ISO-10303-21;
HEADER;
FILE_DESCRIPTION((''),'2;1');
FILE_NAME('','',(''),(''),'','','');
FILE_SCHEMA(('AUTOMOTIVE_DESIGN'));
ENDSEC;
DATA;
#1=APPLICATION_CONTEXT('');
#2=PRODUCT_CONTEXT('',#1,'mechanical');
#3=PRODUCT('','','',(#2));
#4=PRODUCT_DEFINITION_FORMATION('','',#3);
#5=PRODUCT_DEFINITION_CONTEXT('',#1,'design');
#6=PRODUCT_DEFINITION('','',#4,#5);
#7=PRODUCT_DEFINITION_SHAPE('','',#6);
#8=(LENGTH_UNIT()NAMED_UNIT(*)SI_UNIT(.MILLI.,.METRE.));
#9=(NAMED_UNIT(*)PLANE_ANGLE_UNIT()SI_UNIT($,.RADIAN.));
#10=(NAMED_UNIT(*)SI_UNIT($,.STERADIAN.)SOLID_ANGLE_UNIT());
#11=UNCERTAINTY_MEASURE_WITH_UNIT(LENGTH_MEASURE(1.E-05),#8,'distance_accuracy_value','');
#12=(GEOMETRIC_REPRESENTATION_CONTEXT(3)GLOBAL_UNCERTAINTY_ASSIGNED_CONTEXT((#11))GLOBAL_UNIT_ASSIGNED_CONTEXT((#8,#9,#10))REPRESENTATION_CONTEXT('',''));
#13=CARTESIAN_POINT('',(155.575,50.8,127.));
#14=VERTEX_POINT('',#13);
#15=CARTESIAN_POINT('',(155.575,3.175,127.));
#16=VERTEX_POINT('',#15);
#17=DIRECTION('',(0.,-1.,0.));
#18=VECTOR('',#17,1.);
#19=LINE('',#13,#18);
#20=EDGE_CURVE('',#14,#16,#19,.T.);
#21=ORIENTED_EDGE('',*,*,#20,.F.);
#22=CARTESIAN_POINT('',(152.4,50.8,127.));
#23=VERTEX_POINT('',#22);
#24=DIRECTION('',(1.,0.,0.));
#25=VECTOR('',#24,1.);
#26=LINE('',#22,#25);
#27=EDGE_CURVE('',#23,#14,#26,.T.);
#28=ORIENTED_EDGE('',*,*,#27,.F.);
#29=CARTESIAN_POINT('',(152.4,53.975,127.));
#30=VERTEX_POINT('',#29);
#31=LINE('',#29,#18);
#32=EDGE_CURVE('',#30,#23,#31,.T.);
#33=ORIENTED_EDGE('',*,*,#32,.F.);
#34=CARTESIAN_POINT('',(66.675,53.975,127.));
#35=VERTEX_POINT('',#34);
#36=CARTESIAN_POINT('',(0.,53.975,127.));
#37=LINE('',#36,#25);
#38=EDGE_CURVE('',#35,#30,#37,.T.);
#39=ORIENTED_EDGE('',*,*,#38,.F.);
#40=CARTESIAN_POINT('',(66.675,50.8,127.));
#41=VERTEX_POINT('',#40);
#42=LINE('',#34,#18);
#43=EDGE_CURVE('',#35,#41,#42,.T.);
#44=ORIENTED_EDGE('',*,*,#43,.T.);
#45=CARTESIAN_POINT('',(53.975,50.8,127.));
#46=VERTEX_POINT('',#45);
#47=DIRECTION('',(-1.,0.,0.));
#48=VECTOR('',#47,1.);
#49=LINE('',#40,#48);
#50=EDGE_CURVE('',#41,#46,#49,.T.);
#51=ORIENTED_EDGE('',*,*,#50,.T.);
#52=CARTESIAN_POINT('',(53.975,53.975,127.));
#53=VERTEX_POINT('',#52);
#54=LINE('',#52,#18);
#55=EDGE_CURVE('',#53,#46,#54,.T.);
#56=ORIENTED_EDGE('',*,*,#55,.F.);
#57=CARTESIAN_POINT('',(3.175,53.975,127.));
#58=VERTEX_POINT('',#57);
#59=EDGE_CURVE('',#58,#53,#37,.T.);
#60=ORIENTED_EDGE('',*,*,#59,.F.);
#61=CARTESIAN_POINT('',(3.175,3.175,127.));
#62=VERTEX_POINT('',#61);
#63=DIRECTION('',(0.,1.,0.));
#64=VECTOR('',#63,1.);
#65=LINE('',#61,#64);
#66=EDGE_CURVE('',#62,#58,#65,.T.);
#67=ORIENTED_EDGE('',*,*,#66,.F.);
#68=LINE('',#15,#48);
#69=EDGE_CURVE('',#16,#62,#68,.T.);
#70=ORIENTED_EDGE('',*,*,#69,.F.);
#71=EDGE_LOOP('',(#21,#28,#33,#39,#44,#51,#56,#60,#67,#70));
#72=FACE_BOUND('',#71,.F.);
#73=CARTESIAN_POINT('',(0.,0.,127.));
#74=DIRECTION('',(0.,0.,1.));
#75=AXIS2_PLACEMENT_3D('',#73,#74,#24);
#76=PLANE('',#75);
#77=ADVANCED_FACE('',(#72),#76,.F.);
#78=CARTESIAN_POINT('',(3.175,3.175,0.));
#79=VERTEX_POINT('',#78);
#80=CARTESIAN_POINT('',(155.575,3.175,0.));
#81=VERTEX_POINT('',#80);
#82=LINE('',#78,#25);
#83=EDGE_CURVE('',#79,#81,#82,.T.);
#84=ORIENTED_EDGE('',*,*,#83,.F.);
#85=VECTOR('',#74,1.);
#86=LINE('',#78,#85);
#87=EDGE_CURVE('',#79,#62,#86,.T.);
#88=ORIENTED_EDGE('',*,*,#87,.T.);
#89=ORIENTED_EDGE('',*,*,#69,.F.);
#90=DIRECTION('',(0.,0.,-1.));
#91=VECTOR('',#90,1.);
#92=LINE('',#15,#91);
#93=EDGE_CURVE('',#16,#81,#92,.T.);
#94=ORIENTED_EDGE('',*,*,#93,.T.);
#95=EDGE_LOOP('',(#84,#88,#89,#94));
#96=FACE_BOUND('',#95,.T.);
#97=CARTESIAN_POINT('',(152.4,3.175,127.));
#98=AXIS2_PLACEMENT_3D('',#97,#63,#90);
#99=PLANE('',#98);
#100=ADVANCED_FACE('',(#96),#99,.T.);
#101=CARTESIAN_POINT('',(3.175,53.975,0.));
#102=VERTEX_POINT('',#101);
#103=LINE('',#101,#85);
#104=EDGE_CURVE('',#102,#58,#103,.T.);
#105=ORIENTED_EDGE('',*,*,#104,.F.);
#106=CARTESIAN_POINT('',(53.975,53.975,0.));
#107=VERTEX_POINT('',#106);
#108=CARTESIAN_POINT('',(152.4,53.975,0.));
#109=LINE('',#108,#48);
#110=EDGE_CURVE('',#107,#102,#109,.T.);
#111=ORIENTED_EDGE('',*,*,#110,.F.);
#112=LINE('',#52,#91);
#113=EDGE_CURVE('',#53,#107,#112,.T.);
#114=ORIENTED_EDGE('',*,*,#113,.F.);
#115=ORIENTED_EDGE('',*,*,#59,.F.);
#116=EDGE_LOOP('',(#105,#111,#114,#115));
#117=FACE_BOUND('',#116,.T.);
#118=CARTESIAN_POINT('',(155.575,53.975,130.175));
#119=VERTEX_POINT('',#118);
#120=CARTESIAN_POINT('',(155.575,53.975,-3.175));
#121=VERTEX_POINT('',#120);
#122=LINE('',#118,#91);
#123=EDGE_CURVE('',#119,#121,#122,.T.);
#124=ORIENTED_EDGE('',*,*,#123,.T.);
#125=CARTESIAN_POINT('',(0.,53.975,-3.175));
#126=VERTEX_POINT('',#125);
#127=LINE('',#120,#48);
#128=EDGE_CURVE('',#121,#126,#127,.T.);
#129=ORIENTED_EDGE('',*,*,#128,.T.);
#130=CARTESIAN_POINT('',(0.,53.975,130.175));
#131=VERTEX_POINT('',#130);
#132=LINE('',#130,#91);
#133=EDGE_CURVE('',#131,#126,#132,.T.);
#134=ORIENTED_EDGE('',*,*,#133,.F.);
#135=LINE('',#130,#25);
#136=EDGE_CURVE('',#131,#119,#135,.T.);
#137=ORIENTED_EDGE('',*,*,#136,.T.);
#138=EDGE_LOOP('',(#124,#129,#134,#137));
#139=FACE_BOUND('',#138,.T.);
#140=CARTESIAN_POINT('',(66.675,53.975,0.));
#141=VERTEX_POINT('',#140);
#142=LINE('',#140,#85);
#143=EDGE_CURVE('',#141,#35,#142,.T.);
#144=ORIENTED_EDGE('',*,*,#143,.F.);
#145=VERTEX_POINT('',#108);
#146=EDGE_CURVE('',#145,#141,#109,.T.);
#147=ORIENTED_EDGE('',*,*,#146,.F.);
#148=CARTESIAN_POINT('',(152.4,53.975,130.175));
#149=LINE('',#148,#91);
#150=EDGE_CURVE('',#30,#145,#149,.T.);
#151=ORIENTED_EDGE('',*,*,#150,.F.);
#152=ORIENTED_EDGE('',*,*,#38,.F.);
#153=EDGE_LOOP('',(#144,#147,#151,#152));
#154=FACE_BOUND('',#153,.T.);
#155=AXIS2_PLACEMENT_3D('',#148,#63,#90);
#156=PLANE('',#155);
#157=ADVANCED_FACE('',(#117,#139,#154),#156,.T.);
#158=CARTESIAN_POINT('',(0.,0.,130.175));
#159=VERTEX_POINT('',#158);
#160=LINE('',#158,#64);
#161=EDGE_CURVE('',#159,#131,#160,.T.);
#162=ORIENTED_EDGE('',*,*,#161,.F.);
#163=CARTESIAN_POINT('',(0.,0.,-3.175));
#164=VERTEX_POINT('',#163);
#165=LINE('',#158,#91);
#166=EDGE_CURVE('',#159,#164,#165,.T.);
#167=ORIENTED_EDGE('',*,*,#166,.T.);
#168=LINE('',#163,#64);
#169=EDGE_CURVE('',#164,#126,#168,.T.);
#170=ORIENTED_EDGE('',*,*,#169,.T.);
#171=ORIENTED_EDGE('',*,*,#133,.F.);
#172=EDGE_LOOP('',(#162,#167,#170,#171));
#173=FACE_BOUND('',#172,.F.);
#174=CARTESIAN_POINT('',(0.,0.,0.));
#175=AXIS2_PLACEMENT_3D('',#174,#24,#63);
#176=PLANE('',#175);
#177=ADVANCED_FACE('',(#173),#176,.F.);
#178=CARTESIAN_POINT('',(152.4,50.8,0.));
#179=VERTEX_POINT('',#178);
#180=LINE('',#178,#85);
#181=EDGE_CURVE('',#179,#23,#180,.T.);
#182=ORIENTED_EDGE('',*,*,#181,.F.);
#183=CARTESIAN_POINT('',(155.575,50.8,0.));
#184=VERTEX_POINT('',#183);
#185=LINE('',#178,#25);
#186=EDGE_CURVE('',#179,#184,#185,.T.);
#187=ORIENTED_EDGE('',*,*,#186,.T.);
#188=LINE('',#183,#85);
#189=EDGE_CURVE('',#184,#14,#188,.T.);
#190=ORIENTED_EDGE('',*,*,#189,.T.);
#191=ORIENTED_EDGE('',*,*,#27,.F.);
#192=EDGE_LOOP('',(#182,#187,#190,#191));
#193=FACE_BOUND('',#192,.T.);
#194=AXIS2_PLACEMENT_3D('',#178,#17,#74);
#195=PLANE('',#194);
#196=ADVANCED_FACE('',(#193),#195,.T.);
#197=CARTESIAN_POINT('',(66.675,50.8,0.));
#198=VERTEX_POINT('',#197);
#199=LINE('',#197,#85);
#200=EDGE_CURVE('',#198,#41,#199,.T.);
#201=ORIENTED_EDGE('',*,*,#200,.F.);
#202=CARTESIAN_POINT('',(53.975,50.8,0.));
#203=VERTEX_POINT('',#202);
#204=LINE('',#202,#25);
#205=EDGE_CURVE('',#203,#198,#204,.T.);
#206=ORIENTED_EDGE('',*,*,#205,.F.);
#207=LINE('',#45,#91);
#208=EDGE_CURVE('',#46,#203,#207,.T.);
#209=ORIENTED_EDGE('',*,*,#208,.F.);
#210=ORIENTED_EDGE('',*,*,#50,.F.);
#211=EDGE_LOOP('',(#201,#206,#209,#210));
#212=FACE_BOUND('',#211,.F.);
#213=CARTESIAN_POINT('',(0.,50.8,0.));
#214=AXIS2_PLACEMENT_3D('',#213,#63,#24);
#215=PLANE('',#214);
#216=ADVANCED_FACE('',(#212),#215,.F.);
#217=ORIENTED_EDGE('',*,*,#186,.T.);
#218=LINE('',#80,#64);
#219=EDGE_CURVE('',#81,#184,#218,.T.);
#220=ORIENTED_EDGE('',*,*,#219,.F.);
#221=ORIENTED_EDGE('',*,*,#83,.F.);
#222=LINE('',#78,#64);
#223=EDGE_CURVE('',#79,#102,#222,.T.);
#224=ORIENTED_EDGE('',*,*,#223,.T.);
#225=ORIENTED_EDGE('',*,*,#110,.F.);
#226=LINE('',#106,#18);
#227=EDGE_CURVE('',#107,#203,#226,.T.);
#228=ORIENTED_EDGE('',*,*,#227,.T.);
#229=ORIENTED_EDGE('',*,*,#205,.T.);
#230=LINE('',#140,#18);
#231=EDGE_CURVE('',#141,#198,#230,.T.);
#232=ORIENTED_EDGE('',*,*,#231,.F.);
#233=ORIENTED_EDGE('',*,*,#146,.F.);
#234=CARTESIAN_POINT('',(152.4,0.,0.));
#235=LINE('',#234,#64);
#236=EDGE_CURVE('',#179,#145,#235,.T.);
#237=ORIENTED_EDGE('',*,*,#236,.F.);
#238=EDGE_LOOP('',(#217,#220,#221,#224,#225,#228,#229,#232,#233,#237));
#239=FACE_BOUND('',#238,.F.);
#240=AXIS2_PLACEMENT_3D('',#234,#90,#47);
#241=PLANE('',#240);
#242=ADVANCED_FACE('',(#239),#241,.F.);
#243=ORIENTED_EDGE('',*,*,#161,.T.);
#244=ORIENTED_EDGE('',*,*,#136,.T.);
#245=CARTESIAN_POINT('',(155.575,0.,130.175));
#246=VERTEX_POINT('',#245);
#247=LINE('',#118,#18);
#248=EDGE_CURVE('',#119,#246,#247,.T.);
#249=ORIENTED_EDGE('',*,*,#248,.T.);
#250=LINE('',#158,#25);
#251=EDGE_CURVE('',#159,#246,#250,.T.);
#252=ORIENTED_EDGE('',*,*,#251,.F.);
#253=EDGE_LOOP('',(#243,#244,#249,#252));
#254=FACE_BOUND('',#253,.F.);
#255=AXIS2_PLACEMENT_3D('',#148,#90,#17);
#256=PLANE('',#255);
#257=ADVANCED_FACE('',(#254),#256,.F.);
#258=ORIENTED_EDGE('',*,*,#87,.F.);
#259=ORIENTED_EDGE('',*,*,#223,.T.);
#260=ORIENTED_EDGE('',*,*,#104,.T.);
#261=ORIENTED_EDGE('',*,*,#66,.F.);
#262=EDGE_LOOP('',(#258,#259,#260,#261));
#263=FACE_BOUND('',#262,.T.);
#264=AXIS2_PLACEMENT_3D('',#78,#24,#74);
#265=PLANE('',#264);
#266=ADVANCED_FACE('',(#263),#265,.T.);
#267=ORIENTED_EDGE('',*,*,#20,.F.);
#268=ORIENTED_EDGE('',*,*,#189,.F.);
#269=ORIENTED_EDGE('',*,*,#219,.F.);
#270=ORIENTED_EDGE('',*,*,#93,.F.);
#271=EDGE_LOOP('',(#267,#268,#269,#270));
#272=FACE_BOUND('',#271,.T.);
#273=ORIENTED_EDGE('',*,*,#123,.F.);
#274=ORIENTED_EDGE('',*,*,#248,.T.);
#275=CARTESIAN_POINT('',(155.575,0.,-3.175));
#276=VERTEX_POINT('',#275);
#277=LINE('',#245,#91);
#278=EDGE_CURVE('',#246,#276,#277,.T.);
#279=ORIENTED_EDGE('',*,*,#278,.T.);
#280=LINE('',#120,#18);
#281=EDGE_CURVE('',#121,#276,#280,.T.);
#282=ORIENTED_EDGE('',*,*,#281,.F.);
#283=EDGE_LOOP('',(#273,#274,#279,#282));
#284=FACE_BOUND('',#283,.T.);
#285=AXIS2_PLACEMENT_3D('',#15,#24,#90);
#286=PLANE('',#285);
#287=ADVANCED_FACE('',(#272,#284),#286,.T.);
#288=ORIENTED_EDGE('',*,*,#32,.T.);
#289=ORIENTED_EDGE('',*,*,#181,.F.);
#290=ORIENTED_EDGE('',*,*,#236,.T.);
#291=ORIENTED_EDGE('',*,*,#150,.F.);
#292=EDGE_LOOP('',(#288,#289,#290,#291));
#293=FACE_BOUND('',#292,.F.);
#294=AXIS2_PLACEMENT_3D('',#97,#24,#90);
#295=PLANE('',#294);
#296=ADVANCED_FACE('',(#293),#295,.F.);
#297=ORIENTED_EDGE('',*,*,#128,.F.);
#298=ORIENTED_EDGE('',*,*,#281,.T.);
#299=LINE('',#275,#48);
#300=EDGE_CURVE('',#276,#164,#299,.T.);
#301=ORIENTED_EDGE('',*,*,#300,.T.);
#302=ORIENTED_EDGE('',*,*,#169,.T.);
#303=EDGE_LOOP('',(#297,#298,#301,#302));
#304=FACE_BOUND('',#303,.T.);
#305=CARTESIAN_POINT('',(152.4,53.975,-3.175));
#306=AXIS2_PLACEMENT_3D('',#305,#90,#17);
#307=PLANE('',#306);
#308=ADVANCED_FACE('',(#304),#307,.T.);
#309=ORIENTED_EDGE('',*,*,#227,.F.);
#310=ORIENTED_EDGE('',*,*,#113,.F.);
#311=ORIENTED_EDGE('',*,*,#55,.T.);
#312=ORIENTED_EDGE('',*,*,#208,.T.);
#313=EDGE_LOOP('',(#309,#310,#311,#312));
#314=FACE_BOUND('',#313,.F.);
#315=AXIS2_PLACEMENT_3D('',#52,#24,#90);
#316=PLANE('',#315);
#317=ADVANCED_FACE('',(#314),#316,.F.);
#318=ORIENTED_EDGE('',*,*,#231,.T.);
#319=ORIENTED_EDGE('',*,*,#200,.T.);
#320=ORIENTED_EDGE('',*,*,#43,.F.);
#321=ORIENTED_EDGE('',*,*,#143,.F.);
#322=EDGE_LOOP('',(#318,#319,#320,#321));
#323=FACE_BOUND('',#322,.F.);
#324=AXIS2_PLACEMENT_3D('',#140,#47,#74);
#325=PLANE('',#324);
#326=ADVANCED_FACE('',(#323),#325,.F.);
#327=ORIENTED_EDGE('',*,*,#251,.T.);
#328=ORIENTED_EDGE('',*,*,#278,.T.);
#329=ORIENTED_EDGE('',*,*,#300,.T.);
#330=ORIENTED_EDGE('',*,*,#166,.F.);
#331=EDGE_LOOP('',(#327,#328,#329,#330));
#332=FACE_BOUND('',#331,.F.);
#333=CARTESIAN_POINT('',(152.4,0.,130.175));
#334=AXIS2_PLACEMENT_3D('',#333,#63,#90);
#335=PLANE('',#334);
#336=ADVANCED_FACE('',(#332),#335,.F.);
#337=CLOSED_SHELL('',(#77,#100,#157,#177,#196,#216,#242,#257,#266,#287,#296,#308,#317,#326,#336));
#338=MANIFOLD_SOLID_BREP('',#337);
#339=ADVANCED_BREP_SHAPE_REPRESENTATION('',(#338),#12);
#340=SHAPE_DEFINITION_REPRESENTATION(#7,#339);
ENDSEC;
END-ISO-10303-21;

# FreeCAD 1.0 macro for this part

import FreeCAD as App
import Part
import Sketcher
from FreeCAD import Vector
Q = App.Units.Quantity


def add_polygon(sketch, points):
    """Adds a closed chain of lines whose ends are joined by coincident constraints."""
    first, n = sketch.GeometryCount, len(points)
    for a, b in zip(points, points[1:] + points[:1]):
        sketch.addGeometry(Part.LineSegment(App.Vector(*a, 0), App.Vector(*b, 0)), False)
    for i in range(n):
        sketch.addConstraint(Sketcher.Constraint("Coincident", first + i, 2, first + (i + 1) % n, 1))

doc = App.newDocument("Part")
body = doc.addObject("PartDesign::Body", "Body")

# Sketch on XZ plane
sketch1 = body.newObject("Sketcher::SketchObject", "Sketch")
sketch1.AttachmentSupport = (doc.getObject("XZ_Plane"), [""])
sketch1.MapMode = "FlatFace"
add_polygon(sketch1, [(152, 0), (0, 0), (0, 127), (152, 127)])  # lines 0-3
sketch1.addConstraint([
    Sketcher.Constraint("Horizontal", 0),
    Sketcher.Constraint("Vertical", 1),
    Sketcher.Constraint("Horizontal", 2),
    Sketcher.Constraint("Vertical", 3),
    Sketcher.Constraint("Coincident", 0, 2, -1, 1),
    Sketcher.Constraint("DistanceX", 0, 2, 0, 1, Q("6 in")),
    Sketcher.Constraint("DistanceY", 1, 1, 1, 2, Q("5 in")),
])
pad1 = body.newObject("PartDesign::Pad", "Pad")
pad1.Profile = sketch1
pad1.Length = Q("0.125 in")
pad1.Reversed = True

# Sketch on XZ plane
sketch2 = body.newObject("Sketcher::SketchObject", "Sketch001")
sketch2.AttachmentSupport = (doc.getObject("XZ_Plane"), [""])
sketch2.MapMode = "FlatFace"
sketch2.AttachmentOffset = App.Placement(Vector(0, 0, -0.125 * 25.4), App.Rotation())
add_polygon(sketch2, [(3.2, 127), (3.2, 0), (0, 0), (0, 127)])  # lines 0-3
sketch2.addConstraint([
    Sketcher.Constraint("Vertical", 0),
    Sketcher.Constraint("Horizontal", 1),
    Sketcher.Constraint("Vertical", 2),
    Sketcher.Constraint("Horizontal", 3),
    Sketcher.Constraint("Coincident", 1, 2, -1, 1),
    Sketcher.Constraint("DistanceY", 0, 2, 0, 1, Q("5 in")),
    Sketcher.Constraint("DistanceX", 1, 2, 1, 1, Q("0.125 in")),
])
pad2 = body.newObject("PartDesign::Pad", "Pad001")
pad2.Profile = sketch2
pad2.Length = Q("2 in")
pad2.Reversed = True

# Sketch on XY plane
sketch3 = body.newObject("Sketcher::SketchObject", "Sketch002")
sketch3.AttachmentSupport = (doc.getObject("XY_Plane"), [""])
sketch3.MapMode = "FlatFace"
sketch3.AttachmentOffset = App.Placement(Vector(0, 0, 5 * 25.4), App.Rotation())
add_polygon(sketch3, [(0, 54), (0, 0), (152, 0), (152, 54)])  # lines 0-3
sketch3.addConstraint([
    Sketcher.Constraint("Vertical", 0),
    Sketcher.Constraint("Horizontal", 1),
    Sketcher.Constraint("Vertical", 2),
    Sketcher.Constraint("Horizontal", 3),
    Sketcher.Constraint("Coincident", 0, 2, -1, 1),
    Sketcher.Constraint("DistanceX", 1, 1, 1, 2, Q("6 in")),
    Sketcher.Constraint("DistanceY", 0, 2, 0, 1, Q("2.125 in")),
])
pad3 = body.newObject("PartDesign::Pad", "Pad002")
pad3.Profile = sketch3
pad3.Length = Q("0.125 in")

# Sketch on XY plane
sketch4 = body.newObject("Sketcher::SketchObject", "Sketch003")
sketch4.AttachmentSupport = (doc.getObject("XY_Plane"), [""])
sketch4.MapMode = "FlatFace"
add_polygon(sketch4, [(152, 0), (0, 0), (0, 54), (152, 54)])  # lines 0-3
sketch4.addConstraint([
    Sketcher.Constraint("Horizontal", 0),
    Sketcher.Constraint("Vertical", 1),
    Sketcher.Constraint("Horizontal", 2),
    Sketcher.Constraint("Vertical", 3),
    Sketcher.Constraint("Coincident", 0, 2, -1, 1),
    Sketcher.Constraint("DistanceX", 0, 2, 0, 1, Q("6 in")),
    Sketcher.Constraint("DistanceY", 1, 1, 1, 2, Q("2.125 in")),
])
pad4 = body.newObject("PartDesign::Pad", "Pad003")
pad4.Profile = sketch4
pad4.Length = Q("0.125 in")
pad4.Reversed = True

# Sketch on YZ plane
sketch5 = body.newObject("Sketcher::SketchObject", "Sketch004")
sketch5.AttachmentSupport = (doc.getObject("YZ_Plane"), [""])
sketch5.MapMode = "FlatFace"
sketch5.AttachmentOffset = App.Placement(Vector(0, 0, 6 * 25.4), App.Rotation())
add_polygon(sketch5, [(54, -3), (54, 130), (0, 130), (0, -3)])  # lines 0-3
add_polygon(sketch5, [(51, 127), (51, 0), (3, 0), (3, 127)])  # lines 4-7
sketch5.addConstraint([
    Sketcher.Constraint("Vertical", 0),
    Sketcher.Constraint("Horizontal", 1),
    Sketcher.Constraint("Vertical", 2),
    Sketcher.Constraint("Horizontal", 3),
    Sketcher.Constraint("Vertical", 4),
    Sketcher.Constraint("Horizontal", 5),
    Sketcher.Constraint("Vertical", 6),
    Sketcher.Constraint("Horizontal", 7),
    Sketcher.Constraint("PointOnObject", 1, 2, -2),
    Sketcher.Constraint("PointOnObject", 4, 2, -1),
    Sketcher.Constraint("DistanceY", 4, 2, 4, 1, Q("5 in")),
    Sketcher.Constraint("DistanceY", 2, 2, -1, 1, Q("0.125 in")),
    Sketcher.Constraint("DistanceX", -1, 1, 5, 2, Q("0.125 in")),
    Sketcher.Constraint("DistanceX", -1, 1, 4, 2, Q("2 in")),
    Sketcher.Constraint("DistanceX", 4, 2, 3, 2, Q("0.125 in")),
    Sketcher.Constraint("DistanceY", 6, 2, 1, 2, Q("0.125 in")),
])
pad5 = body.newObject("PartDesign::Pad", "Pad004")
pad5.Profile = sketch5
pad5.Length = Q("0.125 in")

# Sketch on XZ plane
sketch6 = body.newObject("Sketcher::SketchObject", "Sketch005")
sketch6.AttachmentSupport = (doc.getObject("XZ_Plane"), [""])
sketch6.MapMode = "FlatFace"
sketch6.AttachmentOffset = App.Placement(Vector(0, 0, -2.125 * 25.4), App.Rotation())
add_polygon(sketch6, [(67, 0), (54, 0), (54, 127), (67, 127)])  # lines 0-3
sketch6.addConstraint([
    Sketcher.Constraint("Horizontal", 0),
    Sketcher.Constraint("Vertical", 1),
    Sketcher.Constraint("Horizontal", 2),
    Sketcher.Constraint("Vertical", 3),
    Sketcher.Constraint("PointOnObject", 0, 2, -1),
    Sketcher.Constraint("DistanceY", 1, 1, 1, 2, Q("5 in")),
    Sketcher.Constraint("DistanceX", 0, 2, 0, 1, Q("0.5 in")),
    Sketcher.Constraint("DistanceX", -1, 1, 0, 2, Q("2.125 in")),
])
pad6 = body.newObject("PartDesign::Pad", "Pad005")
pad6.Profile = sketch6
pad6.Length = Q("0.125 in")

doc.recompute()
